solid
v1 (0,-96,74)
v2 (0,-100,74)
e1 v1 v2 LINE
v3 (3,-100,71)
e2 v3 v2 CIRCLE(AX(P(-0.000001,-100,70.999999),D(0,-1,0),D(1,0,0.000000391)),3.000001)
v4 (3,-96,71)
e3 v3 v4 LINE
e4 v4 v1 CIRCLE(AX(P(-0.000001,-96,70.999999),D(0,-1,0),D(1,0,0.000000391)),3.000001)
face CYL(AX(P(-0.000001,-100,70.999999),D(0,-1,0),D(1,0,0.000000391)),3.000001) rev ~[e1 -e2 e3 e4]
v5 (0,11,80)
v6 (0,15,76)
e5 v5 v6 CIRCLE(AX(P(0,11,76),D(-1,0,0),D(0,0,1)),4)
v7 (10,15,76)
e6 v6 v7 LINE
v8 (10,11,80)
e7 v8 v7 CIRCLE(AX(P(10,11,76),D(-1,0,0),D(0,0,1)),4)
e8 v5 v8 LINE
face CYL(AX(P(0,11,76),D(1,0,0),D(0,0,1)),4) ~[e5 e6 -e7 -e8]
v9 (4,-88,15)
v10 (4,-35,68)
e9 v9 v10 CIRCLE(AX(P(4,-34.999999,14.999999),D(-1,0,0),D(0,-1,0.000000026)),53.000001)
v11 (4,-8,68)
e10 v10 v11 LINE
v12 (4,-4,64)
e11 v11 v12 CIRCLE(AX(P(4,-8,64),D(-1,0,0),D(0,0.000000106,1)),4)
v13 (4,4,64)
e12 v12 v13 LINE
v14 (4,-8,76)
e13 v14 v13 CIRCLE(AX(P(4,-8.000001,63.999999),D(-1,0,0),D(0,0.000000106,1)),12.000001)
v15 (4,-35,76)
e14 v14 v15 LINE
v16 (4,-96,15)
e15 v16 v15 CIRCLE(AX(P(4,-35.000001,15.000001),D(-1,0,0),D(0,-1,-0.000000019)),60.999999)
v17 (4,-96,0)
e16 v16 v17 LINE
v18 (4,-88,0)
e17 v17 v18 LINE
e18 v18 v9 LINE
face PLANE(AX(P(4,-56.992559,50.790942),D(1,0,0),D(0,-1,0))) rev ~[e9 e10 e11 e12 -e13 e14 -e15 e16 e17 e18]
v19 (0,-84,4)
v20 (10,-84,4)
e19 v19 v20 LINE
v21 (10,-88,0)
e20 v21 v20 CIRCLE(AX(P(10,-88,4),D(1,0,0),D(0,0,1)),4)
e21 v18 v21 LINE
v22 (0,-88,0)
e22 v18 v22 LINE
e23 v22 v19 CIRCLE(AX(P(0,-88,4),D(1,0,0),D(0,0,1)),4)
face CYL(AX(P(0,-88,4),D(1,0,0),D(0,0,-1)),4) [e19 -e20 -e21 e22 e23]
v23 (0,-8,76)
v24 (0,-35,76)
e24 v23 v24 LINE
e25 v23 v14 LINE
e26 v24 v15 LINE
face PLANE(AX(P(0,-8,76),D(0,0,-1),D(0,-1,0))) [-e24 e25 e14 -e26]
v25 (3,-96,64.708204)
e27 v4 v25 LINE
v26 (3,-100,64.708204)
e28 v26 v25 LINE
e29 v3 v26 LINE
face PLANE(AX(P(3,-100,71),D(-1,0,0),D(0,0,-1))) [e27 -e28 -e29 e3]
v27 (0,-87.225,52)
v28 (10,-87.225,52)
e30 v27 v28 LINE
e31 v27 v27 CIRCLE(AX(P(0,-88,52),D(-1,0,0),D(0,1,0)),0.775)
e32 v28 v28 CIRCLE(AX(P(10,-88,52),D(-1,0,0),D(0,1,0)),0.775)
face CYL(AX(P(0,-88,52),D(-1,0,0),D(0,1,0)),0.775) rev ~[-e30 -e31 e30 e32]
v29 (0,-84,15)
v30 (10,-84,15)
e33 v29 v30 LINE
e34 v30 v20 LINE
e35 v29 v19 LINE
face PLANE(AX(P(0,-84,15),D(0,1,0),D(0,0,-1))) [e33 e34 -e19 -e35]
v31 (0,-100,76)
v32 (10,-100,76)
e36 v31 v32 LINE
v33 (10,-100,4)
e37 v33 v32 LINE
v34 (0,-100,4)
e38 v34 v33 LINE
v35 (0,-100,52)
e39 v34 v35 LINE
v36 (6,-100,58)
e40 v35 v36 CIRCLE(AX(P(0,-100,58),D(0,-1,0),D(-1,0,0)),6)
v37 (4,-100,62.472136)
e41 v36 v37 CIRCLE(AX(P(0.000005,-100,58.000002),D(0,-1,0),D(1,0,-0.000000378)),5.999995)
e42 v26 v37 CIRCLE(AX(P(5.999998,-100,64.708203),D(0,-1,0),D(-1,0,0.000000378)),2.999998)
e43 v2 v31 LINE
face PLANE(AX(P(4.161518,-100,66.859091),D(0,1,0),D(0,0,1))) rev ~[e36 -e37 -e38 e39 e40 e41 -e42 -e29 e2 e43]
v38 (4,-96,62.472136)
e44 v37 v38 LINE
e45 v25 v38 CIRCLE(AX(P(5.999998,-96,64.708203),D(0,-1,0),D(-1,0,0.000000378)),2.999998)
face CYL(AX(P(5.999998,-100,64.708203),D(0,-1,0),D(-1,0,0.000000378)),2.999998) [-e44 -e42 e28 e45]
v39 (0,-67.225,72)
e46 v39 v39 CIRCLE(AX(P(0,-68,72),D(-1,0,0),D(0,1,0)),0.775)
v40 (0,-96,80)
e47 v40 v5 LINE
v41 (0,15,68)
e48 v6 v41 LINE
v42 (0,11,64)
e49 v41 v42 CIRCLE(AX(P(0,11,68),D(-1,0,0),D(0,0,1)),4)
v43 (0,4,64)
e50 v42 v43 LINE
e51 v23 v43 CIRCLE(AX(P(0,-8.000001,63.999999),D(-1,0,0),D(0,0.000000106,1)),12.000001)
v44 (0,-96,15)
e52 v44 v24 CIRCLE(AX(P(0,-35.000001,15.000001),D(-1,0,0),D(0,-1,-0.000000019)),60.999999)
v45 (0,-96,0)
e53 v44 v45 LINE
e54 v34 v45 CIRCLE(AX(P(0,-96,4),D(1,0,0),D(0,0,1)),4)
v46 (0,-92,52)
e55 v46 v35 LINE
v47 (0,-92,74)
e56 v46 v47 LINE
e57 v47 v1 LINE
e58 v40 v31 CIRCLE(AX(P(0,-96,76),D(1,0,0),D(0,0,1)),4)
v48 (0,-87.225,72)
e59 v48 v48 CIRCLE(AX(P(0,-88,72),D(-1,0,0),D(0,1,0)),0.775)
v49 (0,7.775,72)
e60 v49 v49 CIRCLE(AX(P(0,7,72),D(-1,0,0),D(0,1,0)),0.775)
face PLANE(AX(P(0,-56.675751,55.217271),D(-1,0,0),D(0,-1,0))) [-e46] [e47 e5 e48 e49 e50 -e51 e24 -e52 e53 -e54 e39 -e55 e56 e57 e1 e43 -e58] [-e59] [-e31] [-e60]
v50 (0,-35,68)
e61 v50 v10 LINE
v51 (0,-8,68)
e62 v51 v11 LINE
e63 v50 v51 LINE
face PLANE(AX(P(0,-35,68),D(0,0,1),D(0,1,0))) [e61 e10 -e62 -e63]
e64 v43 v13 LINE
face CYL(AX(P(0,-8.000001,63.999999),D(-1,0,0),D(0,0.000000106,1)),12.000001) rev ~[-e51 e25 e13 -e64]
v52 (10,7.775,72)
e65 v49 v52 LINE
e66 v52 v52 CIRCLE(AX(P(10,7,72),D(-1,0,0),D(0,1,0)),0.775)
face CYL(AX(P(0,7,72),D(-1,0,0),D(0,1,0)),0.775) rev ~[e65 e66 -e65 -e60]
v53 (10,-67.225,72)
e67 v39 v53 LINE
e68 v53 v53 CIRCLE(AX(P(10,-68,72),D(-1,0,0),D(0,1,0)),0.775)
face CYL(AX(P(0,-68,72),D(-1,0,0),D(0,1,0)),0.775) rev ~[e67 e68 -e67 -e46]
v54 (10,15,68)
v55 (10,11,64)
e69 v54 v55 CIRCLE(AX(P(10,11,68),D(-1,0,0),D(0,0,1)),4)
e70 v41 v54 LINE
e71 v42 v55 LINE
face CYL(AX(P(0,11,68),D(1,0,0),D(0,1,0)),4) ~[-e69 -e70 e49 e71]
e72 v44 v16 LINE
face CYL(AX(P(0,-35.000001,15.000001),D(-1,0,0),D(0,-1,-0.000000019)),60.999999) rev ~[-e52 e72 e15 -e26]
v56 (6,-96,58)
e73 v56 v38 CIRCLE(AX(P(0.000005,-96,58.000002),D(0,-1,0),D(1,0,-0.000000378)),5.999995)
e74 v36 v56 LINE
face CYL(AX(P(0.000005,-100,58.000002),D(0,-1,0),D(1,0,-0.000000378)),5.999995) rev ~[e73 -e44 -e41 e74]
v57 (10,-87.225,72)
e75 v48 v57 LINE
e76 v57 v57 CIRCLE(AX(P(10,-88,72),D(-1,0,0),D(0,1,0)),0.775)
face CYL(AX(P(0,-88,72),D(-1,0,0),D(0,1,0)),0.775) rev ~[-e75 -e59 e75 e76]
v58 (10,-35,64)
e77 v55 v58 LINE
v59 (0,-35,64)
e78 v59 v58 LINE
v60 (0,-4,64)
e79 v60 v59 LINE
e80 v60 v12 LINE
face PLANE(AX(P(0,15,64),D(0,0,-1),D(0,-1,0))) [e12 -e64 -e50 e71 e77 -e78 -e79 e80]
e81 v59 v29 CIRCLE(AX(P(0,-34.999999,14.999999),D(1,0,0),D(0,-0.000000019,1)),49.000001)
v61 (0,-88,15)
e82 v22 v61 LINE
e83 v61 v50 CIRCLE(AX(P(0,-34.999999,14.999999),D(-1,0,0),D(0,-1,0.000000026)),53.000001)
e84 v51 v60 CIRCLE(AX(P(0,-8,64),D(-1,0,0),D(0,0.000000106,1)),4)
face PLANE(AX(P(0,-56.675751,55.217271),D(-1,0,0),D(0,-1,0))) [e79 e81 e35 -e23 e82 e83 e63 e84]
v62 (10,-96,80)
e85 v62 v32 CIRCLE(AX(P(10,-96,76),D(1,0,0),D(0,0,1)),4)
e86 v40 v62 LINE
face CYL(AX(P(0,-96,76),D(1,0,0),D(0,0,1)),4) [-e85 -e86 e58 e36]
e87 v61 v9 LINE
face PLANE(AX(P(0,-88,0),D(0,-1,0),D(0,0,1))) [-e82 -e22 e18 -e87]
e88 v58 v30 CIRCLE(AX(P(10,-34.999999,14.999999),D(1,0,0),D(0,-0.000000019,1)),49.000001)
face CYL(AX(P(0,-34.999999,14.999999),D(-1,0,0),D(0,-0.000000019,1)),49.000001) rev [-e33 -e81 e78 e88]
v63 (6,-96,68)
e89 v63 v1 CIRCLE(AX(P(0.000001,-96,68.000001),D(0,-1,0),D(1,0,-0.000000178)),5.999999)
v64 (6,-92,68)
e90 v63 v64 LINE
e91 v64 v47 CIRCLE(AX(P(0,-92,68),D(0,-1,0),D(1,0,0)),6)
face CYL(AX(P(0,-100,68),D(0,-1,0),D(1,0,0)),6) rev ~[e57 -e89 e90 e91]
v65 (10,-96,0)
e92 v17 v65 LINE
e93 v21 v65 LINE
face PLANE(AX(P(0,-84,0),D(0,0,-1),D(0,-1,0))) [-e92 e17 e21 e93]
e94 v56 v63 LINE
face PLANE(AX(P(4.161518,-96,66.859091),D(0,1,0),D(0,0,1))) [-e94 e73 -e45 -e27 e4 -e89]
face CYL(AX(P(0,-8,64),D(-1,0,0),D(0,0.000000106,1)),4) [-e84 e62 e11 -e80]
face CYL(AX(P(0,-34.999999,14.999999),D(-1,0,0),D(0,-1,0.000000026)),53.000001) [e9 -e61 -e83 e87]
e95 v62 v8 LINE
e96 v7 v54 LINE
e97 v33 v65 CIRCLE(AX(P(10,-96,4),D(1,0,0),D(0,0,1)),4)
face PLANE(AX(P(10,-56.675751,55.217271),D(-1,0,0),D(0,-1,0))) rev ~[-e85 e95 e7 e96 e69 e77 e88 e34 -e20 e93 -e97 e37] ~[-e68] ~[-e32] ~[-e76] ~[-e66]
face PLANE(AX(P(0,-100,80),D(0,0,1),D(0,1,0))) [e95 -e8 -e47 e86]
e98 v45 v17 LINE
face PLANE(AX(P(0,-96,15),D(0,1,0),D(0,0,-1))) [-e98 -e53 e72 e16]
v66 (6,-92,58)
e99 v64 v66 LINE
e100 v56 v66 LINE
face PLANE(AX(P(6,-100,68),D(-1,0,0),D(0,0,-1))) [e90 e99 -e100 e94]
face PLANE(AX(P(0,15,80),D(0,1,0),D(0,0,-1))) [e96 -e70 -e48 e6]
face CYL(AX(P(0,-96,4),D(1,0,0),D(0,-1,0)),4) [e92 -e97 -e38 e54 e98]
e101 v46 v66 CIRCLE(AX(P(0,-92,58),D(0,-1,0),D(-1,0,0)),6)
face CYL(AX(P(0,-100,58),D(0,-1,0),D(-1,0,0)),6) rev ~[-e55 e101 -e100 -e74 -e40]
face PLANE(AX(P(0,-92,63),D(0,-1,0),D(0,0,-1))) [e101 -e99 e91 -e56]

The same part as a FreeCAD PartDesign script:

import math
import FreeCAD as App
import Part
import Sketcher
from FreeCAD import Vector


def edges_at(feature, points):
    """Names of the edges that pass closest to the given points."""
    edges = feature.Shape.Edges
    near = lambda p: min(range(len(edges)), key=lambda i: edges[i].distToShape(Part.Vertex(*p))[0])
    return sorted({f"Edge{near(p) + 1}" for p in points})

doc = App.newDocument("Part")
body = doc.addObject("PartDesign::Body", "Body")

# Sketch on YZ plane
sketch1 = body.newObject("Sketcher::SketchObject", "Sketch")
sketch1.AttachmentSupport = (doc.getObject("YZ_Plane"), [""])
sketch1.MapMode = "FlatFace"
sketch1.addGeometry([
    Part.LineSegment(Vector(15, 80, 0), Vector(-100, 80, 0)),  # 0
    Part.LineSegment(Vector(-100, 80, 0), Vector(-100, 0, 0)),  # 1
    Part.LineSegment(Vector(-100, 0, 0), Vector(-84, 0, 0)),  # 2
    Part.LineSegment(Vector(-84, 0, 0), Vector(-84, 15, 0)),  # 3
    Part.ArcOfCircle(Part.Circle(Vector(-35, 15, 0), Vector(0, 0, 1), 49), math.radians(90), math.radians(180)),  # 4
    Part.LineSegment(Vector(-35, 64, 0), Vector(15, 64, 0)),  # 5
    Part.LineSegment(Vector(15, 64, 0), Vector(15, 80, 0)),  # 6
], False)
sketch1.addConstraint([
    Sketcher.Constraint("Coincident", 0, 2, 1, 1),
    Sketcher.Constraint("Coincident", 1, 2, 2, 1),
    Sketcher.Constraint("Coincident", 2, 2, 3, 1),
    Sketcher.Constraint("Tangent", 3, 2, 4, 2),
    Sketcher.Constraint("Tangent", 4, 1, 5, 1),
    Sketcher.Constraint("Coincident", 5, 2, 6, 1),
    Sketcher.Constraint("Coincident", 6, 2, 0, 1),
    Sketcher.Constraint("Horizontal", 0),
    Sketcher.Constraint("Vertical", 1),
    Sketcher.Constraint("Horizontal", 2),
    Sketcher.Constraint("Vertical", 3),
    Sketcher.Constraint("Horizontal", 5),
    Sketcher.Constraint("Vertical", 6),
    Sketcher.Constraint("PointOnObject", 1, 2, -1),
    Sketcher.Constraint("Equal", 2, 6),
    Sketcher.Constraint("Radius", 4, 49.000001),
    Sketcher.Constraint("DistanceX", 0, 2, 0, 1, 115.0),
    Sketcher.Constraint("DistanceX", 2, 1, 2, 2, 16.0),
    Sketcher.Constraint("DistanceY", 1, 2, 1, 1, 80.0),
    Sketcher.Constraint("DistanceX", 4, 3, -1, 1, 34.999999),
])
pad1 = body.newObject("PartDesign::Pad", "Pad")
pad1.Profile = sketch1
pad1.Length = 10

# Sketch on YZ plane
sketch2 = body.newObject("Sketcher::SketchObject", "Sketch001")
sketch2.AttachmentSupport = (doc.getObject("YZ_Plane"), [""])
sketch2.MapMode = "FlatFace"
sketch2.addGeometry([
    Part.LineSegment(Vector(-88, 15, 0), Vector(-88, 0, 0)),  # 0
    Part.LineSegment(Vector(-88, 0, 0), Vector(-96, 0, 0)),  # 1
    Part.LineSegment(Vector(-96, 0, 0), Vector(-96, 15, 0)),  # 2
    Part.ArcOfCircle(Part.Circle(Vector(-35, 15, 0), Vector(0, 0, 1), 61), math.radians(90), math.radians(180)),  # 3
    Part.LineSegment(Vector(-35, 76, 0), Vector(-8, 76, 0)),  # 4
    Part.ArcOfCircle(Part.Circle(Vector(-8, 64, 0), Vector(0, 0, 1), 12), math.radians(0), math.radians(90)),  # 5
    Part.LineSegment(Vector(4, 64, 0), Vector(-4, 64, 0)),  # 6
    Part.ArcOfCircle(Part.Circle(Vector(-8, 64, 0), Vector(0, 0, 1), 4), math.radians(0), math.radians(90)),  # 7
    Part.LineSegment(Vector(-8, 68, 0), Vector(-35, 68, 0)),  # 8
    Part.ArcOfCircle(Part.Circle(Vector(-35, 15, 0), Vector(0, 0, 1), 53), math.radians(90), math.radians(180)),  # 9
], False)
sketch2.addConstraint([
    Sketcher.Constraint("Coincident", 0, 2, 1, 1),
    Sketcher.Constraint("Coincident", 1, 2, 2, 1),
    Sketcher.Constraint("Tangent", 2, 2, 3, 2),
    Sketcher.Constraint("Tangent", 3, 1, 4, 1),
    Sketcher.Constraint("Tangent", 4, 2, 5, 2),
    Sketcher.Constraint("Coincident", 5, 1, 6, 1),
    Sketcher.Constraint("Coincident", 6, 2, 7, 1),
    Sketcher.Constraint("Tangent", 7, 2, 8, 1),
    Sketcher.Constraint("Tangent", 8, 2, 9, 1),
    Sketcher.Constraint("Tangent", 9, 2, 0, 1),
    Sketcher.Constraint("Vertical", 0),
    Sketcher.Constraint("Horizontal", 1),
    Sketcher.Constraint("Vertical", 2),
    Sketcher.Constraint("Horizontal", 4),
    Sketcher.Constraint("Horizontal", 6),
    Sketcher.Constraint("Horizontal", 8),
    Sketcher.Constraint("Coincident", 7, 3, 5, 3),
    Sketcher.Constraint("Coincident", 9, 3, 3, 3),
    Sketcher.Constraint("PointOnObject", 0, 2, -1),
    Sketcher.Constraint("Horizontal", 7, 3, 5, 1),
    Sketcher.Constraint("Radius", 3, 60.999999),
    Sketcher.Constraint("Radius", 5, 12.000001),
    Sketcher.Constraint("Radius", 7, 4.0),
    Sketcher.Constraint("DistanceX", 4, 1, 4, 2, 27.0),
    Sketcher.Constraint("DistanceY", 0, 2, 0, 1, 15.0),
    Sketcher.Constraint("DistanceX", 3, 3, -1, 1, 35.000001),
])
pocket1 = body.newObject("PartDesign::Pocket", "Pocket")
pocket1.Profile = sketch2
pocket1.Length = 4
pocket1.Reversed = True

# Sketch on YZ plane
sketch3 = body.newObject("Sketcher::SketchObject", "Sketch002")
sketch3.AttachmentSupport = (doc.getObject("YZ_Plane"), [""])
sketch3.MapMode = "FlatFace"
sketch3.addGeometry([
    Part.Circle(Vector(-88, 52, 0), Vector(0, 0, 1), 0.8),
    Part.Circle(Vector(-68, 72, 0), Vector(0, 0, 1), 0.8),
    Part.Circle(Vector(-88, 72, 0), Vector(0, 0, 1), 0.8),
    Part.Circle(Vector(7, 72, 0), Vector(0, 0, 1), 0.8),
], False)
sketch3.addConstraint([
    Sketcher.Constraint("Equal", 0, 1),
    Sketcher.Constraint("Equal", 1, 2),
    Sketcher.Constraint("Equal", 2, 3),
    Sketcher.Constraint("Horizontal", 1, 3, 2, 3),
    Sketcher.Constraint("Horizontal", 2, 3, 3, 3),
    Sketcher.Constraint("Vertical", 0, 3, 2, 3),
    Sketcher.Constraint("Diameter", 0, 1.55),
    Sketcher.Constraint("DistanceX", 0, 3, -1, 1, 88.0),
    Sketcher.Constraint("DistanceY", -1, 1, 0, 3, 52.0),
    Sketcher.Constraint("DistanceX", 1, 3, -1, 1, 68.0),
    Sketcher.Constraint("DistanceY", -1, 1, 1, 3, 72.0),
    Sketcher.Constraint("DistanceX", -1, 1, 3, 3, 7.0),
])
pocket2 = body.newObject("PartDesign::Pocket", "Pocket001")
pocket2.Profile = sketch3
pocket2.Type = "ThroughAll"
pocket2.Reversed = True
doc.recompute()

fillet = body.newObject("PartDesign::Fillet", "Fillet")
fillet.Base = (pocket2, edges_at(pocket2, [
    (5, 15, 64),
    (5, 15, 80),
    (5, -100, 80),
    (5, -100, 0),
    (5, -84, 0),
]))
fillet.Radius = 4

# Sketch on XZ plane
sketch4 = body.newObject("Sketcher::SketchObject", "Sketch003")
sketch4.AttachmentSupport = (doc.getObject("XZ_Plane"), [""])
sketch4.MapMode = "FlatFace"
sketch4.AttachmentOffset = App.Placement(Vector(0, 0, 100), App.Rotation())
sketch4.addGeometry([
    Part.ArcOfCircle(Part.Circle(Vector(0, 68, 0), Vector(0, 0, 1), 6), math.radians(0), math.radians(180)),
    Part.LineSegment(Vector(-6, 68, 0), Vector(-6, 58, 0)),
    Part.ArcOfCircle(Part.Circle(Vector(0, 58, 0), Vector(0, 0, 1), 6), math.radians(180), math.radians(360)),
    Part.LineSegment(Vector(6, 58, 0), Vector(6, 68, 0)),
], False)
sketch4.addConstraint([
    Sketcher.Constraint("Tangent", 0, 2, 1, 1),
    Sketcher.Constraint("Tangent", 1, 2, 2, 1),
    Sketcher.Constraint("Tangent", 2, 2, 3, 1),
    Sketcher.Constraint("Tangent", 3, 2, 0, 1),
    Sketcher.Constraint("Vertical", 1),
    Sketcher.Constraint("Vertical", 3),
    Sketcher.Constraint("PointOnObject", 0, 3, -2),
    Sketcher.Constraint("Radius", 0, 6.0),
    Sketcher.Constraint("DistanceY", 1, 2, 1, 1, 10.0),
    Sketcher.Constraint("DistanceY", -1, 1, 0, 3, 68.0),
])
pocket3 = body.newObject("PartDesign::Pocket", "Pocket002")
pocket3.Profile = sketch4
pocket3.Length = 8

# Sketch on XZ plane
sketch5 = body.newObject("Sketcher::SketchObject", "Sketch004")
sketch5.AttachmentSupport = (doc.getObject("XZ_Plane"), [""])
sketch5.MapMode = "FlatFace"
sketch5.AttachmentOffset = App.Placement(Vector(0, 0, 100), App.Rotation())
sketch5.addGeometry([
    Part.ArcOfCircle(Part.Circle(Vector(0, 71, 0), Vector(0, 0, 1), 3), math.radians(0), math.radians(90)),  # 0
    Part.LineSegment(Vector(3, 71, 0), Vector(3, 64.7, 0)),  # 1
    Part.ArcOfCircle(Part.Circle(Vector(6, 64.7, 0), Vector(0, 0, 1), 3), math.radians(180), math.radians(228)),  # 2
    Part.ArcOfCircle(Part.Circle(Vector(0, 58, 0), Vector(0, 0, 1), 6), math.radians(0), math.radians(48)),  # 3
    Part.LineSegment(Vector(6, 58, 0), Vector(6, 68, 0)),  # 4
    Part.ArcOfCircle(Part.Circle(Vector(0, 68, 0), Vector(0, 0, 1), 6), math.radians(0), math.radians(90)),  # 5
], False)
sketch5.addConstraint([
    Sketcher.Constraint("Tangent", 0, 1, 1, 1),
    Sketcher.Constraint("Tangent", 1, 2, 2, 1),
    Sketcher.Constraint("Tangent", 2, 2, 3, 2),
    Sketcher.Constraint("Tangent", 3, 1, 4, 1),
    Sketcher.Constraint("Tangent", 4, 2, 5, 1),
    Sketcher.Constraint("Tangent", 5, 2, 0, 2),
    Sketcher.Constraint("Vertical", 1),
    Sketcher.Constraint("Vertical", 4),
    Sketcher.Constraint("PointOnObject", 0, 3, -2),
    Sketcher.Constraint("PointOnObject", 5, 3, -2),
    Sketcher.Constraint("Radius", 0, 3.000001),
    Sketcher.Constraint("Radius", 5, 5.999999),
    Sketcher.Constraint("DistanceY", 4, 1, 4, 2, 10.0),
    Sketcher.Constraint("DistanceY", -1, 1, 0, 3, 70.999999),
    Sketcher.Constraint("DistanceX", -1, 1, 2, 2, 4.0),
    Sketcher.Constraint("DistanceX", 0, 3, 2, 3, 5.999999),
])
pad2 = body.newObject("PartDesign::Pad", "Pad001")
pad2.Profile = sketch5
pad2.Length = 4
pad2.Reversed = True

doc.recompute()
